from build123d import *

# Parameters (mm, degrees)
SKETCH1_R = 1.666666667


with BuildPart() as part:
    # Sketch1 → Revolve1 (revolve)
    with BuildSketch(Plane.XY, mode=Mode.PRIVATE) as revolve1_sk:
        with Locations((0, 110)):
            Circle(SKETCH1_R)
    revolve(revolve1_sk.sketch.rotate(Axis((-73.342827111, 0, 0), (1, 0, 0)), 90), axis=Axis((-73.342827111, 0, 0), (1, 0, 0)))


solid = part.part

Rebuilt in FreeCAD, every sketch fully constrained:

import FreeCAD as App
import Part
import Sketcher

V = App.Vector

doc = App.newDocument("Part")
body = doc.addObject("PartDesign::Body", "Body")

sketch1 = body.newObject("Sketcher::SketchObject", "Sketch")
sketch1.AttachmentSupport = (doc.getObject("XY_Plane"), [""])
sketch1.MapMode = "FlatFace"
sketch1.addGeometry(Part.Circle(V(0, 110, 0), V(0, 0, 1), 1.7), False)
sketch1.addConstraint([
    Sketcher.Constraint("PointOnObject", 0, 3, -2),
    Sketcher.Constraint("DistanceY", -1, 1, 0, 3, 110.0),
    Sketcher.Constraint("Diameter", 0, 3.333333),
])
revolution = body.newObject("PartDesign::Revolution", "Revolution")
revolution.Profile = sketch1
revolution.ReferenceAxis = (sketch1, ["H_Axis"])
revolution.Angle = 360

doc.recompute()
